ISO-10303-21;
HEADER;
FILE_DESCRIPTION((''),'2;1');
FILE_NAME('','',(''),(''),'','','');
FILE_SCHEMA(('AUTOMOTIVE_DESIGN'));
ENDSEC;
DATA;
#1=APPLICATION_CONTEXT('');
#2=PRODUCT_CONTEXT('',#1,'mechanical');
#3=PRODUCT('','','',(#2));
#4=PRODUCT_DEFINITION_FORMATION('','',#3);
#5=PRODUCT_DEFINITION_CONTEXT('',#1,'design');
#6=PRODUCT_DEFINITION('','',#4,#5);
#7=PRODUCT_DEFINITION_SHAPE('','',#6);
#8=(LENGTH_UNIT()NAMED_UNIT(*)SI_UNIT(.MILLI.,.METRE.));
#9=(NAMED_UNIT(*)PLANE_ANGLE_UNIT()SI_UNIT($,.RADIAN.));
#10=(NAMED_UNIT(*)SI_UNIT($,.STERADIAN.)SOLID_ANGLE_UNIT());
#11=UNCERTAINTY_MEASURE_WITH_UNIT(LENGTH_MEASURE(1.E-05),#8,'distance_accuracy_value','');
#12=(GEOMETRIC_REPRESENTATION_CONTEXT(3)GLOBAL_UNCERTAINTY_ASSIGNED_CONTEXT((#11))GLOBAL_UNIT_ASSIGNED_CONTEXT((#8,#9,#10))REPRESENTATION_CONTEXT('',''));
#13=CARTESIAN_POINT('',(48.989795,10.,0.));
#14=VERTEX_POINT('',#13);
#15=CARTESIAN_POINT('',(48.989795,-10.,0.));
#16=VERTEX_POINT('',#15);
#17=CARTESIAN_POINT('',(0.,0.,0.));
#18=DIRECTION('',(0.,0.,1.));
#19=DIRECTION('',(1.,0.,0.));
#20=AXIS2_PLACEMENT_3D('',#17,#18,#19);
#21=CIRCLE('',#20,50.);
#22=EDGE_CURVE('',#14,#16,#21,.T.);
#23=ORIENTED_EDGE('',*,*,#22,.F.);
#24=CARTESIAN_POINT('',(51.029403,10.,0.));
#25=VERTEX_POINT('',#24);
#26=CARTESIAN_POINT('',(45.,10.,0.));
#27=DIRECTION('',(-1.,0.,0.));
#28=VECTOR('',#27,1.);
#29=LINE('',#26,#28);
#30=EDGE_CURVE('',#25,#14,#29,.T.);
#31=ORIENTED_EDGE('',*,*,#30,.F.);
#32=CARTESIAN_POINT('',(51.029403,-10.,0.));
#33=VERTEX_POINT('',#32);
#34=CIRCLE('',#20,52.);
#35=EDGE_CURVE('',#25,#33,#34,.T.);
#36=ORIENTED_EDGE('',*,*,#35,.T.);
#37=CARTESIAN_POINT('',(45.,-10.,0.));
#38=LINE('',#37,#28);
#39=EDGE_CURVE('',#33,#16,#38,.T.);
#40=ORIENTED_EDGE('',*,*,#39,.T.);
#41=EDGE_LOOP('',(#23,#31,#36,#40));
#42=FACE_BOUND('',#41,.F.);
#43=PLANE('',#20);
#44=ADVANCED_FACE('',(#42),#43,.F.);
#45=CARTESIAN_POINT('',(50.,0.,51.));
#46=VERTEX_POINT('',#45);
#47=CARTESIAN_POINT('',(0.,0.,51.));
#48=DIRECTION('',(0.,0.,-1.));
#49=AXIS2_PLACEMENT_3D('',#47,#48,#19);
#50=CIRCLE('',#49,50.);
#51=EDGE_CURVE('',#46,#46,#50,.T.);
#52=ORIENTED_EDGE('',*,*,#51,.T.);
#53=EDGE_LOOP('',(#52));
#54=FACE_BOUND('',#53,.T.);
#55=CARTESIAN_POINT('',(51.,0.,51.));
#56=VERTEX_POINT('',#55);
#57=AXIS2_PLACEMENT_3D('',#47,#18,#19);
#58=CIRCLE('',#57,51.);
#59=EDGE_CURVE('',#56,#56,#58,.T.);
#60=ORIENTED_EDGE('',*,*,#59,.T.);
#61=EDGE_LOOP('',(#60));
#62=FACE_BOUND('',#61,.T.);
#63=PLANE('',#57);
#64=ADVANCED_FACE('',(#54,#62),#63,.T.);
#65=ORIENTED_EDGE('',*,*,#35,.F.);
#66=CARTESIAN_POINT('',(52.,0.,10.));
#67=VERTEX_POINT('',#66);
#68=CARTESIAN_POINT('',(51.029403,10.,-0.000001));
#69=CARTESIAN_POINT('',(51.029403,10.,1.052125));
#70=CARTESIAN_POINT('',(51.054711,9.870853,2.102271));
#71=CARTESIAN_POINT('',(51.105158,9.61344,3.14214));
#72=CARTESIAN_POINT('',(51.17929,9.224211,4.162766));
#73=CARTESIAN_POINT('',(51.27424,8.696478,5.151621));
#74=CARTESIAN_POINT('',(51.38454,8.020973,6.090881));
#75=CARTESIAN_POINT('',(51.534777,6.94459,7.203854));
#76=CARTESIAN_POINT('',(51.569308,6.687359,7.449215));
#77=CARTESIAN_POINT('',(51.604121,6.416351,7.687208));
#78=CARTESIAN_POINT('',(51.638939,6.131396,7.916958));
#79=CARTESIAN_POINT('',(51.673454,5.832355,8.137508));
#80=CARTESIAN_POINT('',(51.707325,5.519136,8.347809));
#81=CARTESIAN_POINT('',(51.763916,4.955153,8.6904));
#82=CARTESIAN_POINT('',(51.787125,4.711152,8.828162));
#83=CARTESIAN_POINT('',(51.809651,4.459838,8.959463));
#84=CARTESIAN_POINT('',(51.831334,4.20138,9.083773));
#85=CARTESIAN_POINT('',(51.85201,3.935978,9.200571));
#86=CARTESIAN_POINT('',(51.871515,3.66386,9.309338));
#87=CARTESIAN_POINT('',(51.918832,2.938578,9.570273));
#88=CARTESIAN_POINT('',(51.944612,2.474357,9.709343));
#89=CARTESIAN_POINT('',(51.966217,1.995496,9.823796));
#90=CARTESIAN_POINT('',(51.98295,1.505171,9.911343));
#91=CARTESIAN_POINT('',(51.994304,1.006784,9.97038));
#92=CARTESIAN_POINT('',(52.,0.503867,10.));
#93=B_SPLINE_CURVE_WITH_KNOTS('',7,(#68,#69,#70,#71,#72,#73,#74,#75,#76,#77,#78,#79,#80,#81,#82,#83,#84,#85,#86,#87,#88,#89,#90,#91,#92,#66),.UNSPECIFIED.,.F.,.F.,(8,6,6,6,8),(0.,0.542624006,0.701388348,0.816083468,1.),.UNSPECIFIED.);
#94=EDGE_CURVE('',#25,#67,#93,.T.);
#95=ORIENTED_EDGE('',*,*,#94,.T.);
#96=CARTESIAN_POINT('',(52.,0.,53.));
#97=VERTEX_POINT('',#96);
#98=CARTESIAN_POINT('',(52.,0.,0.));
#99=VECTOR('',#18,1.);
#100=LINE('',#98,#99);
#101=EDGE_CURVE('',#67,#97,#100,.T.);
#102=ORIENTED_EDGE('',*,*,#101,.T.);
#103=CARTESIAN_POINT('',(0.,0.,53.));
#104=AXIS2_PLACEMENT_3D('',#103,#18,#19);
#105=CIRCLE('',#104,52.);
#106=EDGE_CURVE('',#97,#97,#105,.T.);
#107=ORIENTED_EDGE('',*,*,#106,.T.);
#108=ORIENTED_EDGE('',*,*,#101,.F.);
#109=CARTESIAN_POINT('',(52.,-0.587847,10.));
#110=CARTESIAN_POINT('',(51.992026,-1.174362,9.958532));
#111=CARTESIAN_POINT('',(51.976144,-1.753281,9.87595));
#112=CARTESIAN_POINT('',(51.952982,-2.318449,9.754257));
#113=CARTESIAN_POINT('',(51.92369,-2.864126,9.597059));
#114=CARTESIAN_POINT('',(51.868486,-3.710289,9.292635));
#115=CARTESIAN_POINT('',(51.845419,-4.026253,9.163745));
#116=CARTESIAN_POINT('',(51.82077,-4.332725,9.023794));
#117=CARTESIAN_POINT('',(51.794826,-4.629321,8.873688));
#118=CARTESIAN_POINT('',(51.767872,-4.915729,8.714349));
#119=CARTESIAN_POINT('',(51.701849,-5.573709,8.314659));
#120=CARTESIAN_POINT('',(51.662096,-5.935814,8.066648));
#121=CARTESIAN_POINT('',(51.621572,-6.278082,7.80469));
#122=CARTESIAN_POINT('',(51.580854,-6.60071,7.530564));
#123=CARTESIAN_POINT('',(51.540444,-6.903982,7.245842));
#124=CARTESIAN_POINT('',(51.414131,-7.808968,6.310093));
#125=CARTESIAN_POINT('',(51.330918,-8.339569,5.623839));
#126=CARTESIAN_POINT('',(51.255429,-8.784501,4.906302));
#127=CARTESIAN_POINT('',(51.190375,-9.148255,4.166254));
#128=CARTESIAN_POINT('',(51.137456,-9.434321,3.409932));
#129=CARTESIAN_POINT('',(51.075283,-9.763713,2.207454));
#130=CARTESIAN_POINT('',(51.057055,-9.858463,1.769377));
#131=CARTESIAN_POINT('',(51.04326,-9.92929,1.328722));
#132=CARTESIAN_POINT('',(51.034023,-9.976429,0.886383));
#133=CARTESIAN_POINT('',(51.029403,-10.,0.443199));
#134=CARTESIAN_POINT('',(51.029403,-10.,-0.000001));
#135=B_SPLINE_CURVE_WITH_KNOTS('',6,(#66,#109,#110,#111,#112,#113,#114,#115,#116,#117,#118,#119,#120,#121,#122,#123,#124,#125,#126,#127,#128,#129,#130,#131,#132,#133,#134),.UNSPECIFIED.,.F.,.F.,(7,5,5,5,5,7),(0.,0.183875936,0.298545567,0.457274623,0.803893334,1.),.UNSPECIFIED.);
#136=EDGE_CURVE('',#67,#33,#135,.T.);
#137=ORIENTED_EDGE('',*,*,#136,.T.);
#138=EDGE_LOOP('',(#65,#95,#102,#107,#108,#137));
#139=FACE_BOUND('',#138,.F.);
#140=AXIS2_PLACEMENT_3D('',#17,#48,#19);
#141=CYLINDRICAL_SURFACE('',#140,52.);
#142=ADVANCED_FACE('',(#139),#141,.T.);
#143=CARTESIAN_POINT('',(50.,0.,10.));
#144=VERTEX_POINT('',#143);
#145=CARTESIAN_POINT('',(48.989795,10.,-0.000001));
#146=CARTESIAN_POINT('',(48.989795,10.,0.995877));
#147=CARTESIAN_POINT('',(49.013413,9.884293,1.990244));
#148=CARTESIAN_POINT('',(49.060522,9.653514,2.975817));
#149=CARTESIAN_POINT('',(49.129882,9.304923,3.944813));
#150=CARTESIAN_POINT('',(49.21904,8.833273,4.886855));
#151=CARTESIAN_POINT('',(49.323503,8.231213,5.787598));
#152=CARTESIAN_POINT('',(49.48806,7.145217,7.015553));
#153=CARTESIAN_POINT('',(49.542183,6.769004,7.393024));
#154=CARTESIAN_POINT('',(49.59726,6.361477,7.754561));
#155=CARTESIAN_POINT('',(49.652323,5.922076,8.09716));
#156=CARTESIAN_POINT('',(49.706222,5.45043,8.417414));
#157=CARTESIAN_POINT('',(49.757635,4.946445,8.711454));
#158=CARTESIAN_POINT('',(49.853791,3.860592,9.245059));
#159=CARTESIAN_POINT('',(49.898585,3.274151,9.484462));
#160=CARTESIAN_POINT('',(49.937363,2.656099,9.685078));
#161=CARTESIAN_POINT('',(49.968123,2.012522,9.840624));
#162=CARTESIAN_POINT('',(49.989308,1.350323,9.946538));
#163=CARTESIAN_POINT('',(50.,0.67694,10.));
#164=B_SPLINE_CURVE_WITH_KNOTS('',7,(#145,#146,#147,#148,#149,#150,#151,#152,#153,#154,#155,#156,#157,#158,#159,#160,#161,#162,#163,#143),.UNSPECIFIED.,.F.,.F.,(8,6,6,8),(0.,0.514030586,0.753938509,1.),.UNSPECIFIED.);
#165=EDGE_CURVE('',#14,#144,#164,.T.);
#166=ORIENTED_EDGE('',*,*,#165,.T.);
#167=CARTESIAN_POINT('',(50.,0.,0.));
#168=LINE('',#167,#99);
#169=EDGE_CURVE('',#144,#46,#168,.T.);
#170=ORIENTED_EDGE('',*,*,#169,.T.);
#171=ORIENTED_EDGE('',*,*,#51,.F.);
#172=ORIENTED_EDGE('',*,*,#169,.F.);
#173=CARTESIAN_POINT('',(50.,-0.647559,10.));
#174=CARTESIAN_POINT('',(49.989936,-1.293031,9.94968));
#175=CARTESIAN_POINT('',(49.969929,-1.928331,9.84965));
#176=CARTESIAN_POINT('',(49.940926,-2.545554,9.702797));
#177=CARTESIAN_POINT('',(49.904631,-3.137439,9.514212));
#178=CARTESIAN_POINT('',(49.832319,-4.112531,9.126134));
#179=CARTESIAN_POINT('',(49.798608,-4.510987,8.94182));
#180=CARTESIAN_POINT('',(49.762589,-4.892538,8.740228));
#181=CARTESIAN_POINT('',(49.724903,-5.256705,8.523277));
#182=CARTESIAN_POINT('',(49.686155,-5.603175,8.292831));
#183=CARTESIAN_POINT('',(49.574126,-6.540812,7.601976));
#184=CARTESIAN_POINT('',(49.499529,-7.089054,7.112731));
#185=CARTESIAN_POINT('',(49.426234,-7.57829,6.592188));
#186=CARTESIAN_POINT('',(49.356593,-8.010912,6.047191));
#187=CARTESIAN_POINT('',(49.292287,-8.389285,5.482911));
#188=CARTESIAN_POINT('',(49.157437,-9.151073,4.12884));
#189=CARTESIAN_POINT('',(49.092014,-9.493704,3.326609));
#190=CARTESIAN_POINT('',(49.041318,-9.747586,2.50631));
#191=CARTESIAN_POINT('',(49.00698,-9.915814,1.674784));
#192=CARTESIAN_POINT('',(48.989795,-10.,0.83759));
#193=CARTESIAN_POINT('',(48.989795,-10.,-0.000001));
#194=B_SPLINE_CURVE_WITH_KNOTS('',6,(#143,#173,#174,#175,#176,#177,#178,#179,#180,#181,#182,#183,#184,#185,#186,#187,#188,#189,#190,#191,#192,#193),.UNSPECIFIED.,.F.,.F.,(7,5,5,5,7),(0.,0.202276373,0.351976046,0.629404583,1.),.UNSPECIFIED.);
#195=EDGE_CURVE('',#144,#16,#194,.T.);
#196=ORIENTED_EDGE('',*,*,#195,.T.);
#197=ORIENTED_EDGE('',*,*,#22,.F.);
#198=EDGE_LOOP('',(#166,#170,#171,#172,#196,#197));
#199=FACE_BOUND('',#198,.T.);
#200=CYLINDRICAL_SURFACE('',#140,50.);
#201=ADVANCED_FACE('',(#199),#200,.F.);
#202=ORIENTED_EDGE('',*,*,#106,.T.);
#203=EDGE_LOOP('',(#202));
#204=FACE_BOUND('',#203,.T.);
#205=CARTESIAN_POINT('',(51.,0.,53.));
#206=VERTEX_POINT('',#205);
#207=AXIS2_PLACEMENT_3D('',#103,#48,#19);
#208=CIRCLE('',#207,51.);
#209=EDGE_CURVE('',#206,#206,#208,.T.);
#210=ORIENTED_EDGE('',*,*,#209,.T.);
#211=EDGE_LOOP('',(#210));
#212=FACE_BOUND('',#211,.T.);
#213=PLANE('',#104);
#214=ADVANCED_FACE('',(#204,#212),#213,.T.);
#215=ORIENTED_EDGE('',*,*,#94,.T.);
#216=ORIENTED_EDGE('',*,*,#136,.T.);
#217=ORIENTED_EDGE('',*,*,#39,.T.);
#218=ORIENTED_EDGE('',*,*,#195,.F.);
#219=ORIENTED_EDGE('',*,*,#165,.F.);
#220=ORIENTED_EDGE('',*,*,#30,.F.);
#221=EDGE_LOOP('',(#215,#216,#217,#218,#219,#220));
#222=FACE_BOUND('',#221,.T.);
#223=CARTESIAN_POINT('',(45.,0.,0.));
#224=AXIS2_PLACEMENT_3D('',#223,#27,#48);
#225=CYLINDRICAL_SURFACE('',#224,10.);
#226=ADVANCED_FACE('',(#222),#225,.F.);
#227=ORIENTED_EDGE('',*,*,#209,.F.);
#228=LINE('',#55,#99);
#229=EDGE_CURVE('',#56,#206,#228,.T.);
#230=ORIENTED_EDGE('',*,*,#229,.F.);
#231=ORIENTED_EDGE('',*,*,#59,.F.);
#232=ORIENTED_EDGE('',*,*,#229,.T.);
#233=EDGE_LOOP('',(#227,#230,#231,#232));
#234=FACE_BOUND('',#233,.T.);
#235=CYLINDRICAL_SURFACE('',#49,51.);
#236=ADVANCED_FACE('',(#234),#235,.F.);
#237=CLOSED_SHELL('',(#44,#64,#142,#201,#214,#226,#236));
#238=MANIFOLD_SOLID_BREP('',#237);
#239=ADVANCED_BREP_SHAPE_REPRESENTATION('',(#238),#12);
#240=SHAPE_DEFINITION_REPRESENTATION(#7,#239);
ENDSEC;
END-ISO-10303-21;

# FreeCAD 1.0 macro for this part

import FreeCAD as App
import Part
import Sketcher
from FreeCAD import Vector
Q = App.Units.Quantity

doc = App.newDocument("Part")
body = doc.addObject("PartDesign::Body", "Body")

# Sketch on XY plane
sketch1 = body.newObject("Sketcher::SketchObject", "Sketch")
sketch1.AttachmentSupport = (doc.getObject("XY_Plane"), [""])
sketch1.MapMode = "FlatFace"
sketch1.AttachmentOffset = App.Placement(Vector(0, 0, 51), App.Rotation())
sketch1.addGeometry(Part.Circle(Vector(0, 0, 0), Vector(0, 0, 1), 51), False)
sketch1.addConstraint([
    Sketcher.Constraint("Coincident", 0, 3, -1, 1),
    Sketcher.Constraint("Diameter", 0, Q("102 mm")),
])
pad1 = body.newObject("PartDesign::Pad", "Pad")
pad1.Profile = sketch1
pad1.Length = 16
body2 = doc.addObject("PartDesign::Body", "Body001")

# Sketch on XY plane
sketch2 = body2.newObject("Sketcher::SketchObject", "Sketch001")
sketch2.AttachmentSupport = (doc.getObject("XY_Plane001"), [""])
sketch2.MapMode = "FlatFace"
sketch2.addGeometry(Part.Circle(Vector(0, 0, 0), Vector(0, 0, 1), 10), False)
sketch2.addConstraint([
    Sketcher.Constraint("Coincident", 0, 3, -1, 1),
    Sketcher.Constraint("Diameter", 0, Q("20 mm")),
])
pad2 = body2.newObject("PartDesign::Pad", "Pad001")
pad2.Profile = sketch2
pad2.Length = 10
body3 = doc.addObject("PartDesign::Body", "Body002")
doc.recompute()

body2.Placement = App.Placement(Vector(0, 0, 0), App.Rotation(Vector(0, 1, 0), 90))
boolean = body3.newObject("PartDesign::Boolean", "Boolean")
boolean.Type = "Fuse"
boolean.addObjects([body2])
body4 = doc.addObject("PartDesign::Body", "Body003")
doc.recompute()

body3.Placement = App.Placement(Vector(45, 0, 0), App.Rotation(Vector(0, 0, 1), 0))
boolean2 = body4.newObject("PartDesign::Boolean", "Boolean001")
boolean2.Type = "Fuse"
boolean2.addObjects([body3])
body5 = doc.addObject("PartDesign::Body", "Body004")

# Sketch on XY plane
sketch3 = body5.newObject("Sketcher::SketchObject", "Sketch002")
sketch3.AttachmentSupport = (doc.getObject("XY_Plane004"), [""])
sketch3.MapMode = "FlatFace"
sketch3.addGeometry(Part.Circle(Vector(0, 0, 0), Vector(0, 0, 1), 50), False)
sketch3.addConstraint([
    Sketcher.Constraint("Coincident", 0, 3, -1, 1),
    Sketcher.Constraint("Diameter", 0, Q("100 mm")),
])
pad3 = body5.newObject("PartDesign::Pad", "Pad002")
pad3.Profile = sketch3
pad3.Length = 67
body6 = doc.addObject("PartDesign::Body", "Body005")

# Sketch on XY plane
sketch4 = body6.newObject("Sketcher::SketchObject", "Sketch003")
sketch4.AttachmentSupport = (doc.getObject("XY_Plane005"), [""])
sketch4.MapMode = "FlatFace"
sketch4.addGeometry(Part.Circle(Vector(0, 0, 0), Vector(0, 0, 1), 52), False)
sketch4.addConstraint([
    Sketcher.Constraint("Coincident", 0, 3, -1, 1),
    Sketcher.Constraint("Diameter", 0, Q("104 mm")),
])
pad4 = body6.newObject("PartDesign::Pad", "Pad003")
pad4.Profile = sketch4
pad4.Length = 53
doc.recompute()

boolean3 = body6.newObject("PartDesign::Boolean", "Boolean002")
boolean3.Type = "Cut"
boolean3.addObjects([body5])
doc.recompute()

boolean4 = body6.newObject("PartDesign::Boolean", "Boolean003")
boolean4.Type = "Cut"
boolean4.addObjects([body4])
doc.recompute()

boolean5 = body6.newObject("PartDesign::Boolean", "Boolean004")
boolean5.Type = "Cut"
boolean5.addObjects([body])

doc.recompute()
